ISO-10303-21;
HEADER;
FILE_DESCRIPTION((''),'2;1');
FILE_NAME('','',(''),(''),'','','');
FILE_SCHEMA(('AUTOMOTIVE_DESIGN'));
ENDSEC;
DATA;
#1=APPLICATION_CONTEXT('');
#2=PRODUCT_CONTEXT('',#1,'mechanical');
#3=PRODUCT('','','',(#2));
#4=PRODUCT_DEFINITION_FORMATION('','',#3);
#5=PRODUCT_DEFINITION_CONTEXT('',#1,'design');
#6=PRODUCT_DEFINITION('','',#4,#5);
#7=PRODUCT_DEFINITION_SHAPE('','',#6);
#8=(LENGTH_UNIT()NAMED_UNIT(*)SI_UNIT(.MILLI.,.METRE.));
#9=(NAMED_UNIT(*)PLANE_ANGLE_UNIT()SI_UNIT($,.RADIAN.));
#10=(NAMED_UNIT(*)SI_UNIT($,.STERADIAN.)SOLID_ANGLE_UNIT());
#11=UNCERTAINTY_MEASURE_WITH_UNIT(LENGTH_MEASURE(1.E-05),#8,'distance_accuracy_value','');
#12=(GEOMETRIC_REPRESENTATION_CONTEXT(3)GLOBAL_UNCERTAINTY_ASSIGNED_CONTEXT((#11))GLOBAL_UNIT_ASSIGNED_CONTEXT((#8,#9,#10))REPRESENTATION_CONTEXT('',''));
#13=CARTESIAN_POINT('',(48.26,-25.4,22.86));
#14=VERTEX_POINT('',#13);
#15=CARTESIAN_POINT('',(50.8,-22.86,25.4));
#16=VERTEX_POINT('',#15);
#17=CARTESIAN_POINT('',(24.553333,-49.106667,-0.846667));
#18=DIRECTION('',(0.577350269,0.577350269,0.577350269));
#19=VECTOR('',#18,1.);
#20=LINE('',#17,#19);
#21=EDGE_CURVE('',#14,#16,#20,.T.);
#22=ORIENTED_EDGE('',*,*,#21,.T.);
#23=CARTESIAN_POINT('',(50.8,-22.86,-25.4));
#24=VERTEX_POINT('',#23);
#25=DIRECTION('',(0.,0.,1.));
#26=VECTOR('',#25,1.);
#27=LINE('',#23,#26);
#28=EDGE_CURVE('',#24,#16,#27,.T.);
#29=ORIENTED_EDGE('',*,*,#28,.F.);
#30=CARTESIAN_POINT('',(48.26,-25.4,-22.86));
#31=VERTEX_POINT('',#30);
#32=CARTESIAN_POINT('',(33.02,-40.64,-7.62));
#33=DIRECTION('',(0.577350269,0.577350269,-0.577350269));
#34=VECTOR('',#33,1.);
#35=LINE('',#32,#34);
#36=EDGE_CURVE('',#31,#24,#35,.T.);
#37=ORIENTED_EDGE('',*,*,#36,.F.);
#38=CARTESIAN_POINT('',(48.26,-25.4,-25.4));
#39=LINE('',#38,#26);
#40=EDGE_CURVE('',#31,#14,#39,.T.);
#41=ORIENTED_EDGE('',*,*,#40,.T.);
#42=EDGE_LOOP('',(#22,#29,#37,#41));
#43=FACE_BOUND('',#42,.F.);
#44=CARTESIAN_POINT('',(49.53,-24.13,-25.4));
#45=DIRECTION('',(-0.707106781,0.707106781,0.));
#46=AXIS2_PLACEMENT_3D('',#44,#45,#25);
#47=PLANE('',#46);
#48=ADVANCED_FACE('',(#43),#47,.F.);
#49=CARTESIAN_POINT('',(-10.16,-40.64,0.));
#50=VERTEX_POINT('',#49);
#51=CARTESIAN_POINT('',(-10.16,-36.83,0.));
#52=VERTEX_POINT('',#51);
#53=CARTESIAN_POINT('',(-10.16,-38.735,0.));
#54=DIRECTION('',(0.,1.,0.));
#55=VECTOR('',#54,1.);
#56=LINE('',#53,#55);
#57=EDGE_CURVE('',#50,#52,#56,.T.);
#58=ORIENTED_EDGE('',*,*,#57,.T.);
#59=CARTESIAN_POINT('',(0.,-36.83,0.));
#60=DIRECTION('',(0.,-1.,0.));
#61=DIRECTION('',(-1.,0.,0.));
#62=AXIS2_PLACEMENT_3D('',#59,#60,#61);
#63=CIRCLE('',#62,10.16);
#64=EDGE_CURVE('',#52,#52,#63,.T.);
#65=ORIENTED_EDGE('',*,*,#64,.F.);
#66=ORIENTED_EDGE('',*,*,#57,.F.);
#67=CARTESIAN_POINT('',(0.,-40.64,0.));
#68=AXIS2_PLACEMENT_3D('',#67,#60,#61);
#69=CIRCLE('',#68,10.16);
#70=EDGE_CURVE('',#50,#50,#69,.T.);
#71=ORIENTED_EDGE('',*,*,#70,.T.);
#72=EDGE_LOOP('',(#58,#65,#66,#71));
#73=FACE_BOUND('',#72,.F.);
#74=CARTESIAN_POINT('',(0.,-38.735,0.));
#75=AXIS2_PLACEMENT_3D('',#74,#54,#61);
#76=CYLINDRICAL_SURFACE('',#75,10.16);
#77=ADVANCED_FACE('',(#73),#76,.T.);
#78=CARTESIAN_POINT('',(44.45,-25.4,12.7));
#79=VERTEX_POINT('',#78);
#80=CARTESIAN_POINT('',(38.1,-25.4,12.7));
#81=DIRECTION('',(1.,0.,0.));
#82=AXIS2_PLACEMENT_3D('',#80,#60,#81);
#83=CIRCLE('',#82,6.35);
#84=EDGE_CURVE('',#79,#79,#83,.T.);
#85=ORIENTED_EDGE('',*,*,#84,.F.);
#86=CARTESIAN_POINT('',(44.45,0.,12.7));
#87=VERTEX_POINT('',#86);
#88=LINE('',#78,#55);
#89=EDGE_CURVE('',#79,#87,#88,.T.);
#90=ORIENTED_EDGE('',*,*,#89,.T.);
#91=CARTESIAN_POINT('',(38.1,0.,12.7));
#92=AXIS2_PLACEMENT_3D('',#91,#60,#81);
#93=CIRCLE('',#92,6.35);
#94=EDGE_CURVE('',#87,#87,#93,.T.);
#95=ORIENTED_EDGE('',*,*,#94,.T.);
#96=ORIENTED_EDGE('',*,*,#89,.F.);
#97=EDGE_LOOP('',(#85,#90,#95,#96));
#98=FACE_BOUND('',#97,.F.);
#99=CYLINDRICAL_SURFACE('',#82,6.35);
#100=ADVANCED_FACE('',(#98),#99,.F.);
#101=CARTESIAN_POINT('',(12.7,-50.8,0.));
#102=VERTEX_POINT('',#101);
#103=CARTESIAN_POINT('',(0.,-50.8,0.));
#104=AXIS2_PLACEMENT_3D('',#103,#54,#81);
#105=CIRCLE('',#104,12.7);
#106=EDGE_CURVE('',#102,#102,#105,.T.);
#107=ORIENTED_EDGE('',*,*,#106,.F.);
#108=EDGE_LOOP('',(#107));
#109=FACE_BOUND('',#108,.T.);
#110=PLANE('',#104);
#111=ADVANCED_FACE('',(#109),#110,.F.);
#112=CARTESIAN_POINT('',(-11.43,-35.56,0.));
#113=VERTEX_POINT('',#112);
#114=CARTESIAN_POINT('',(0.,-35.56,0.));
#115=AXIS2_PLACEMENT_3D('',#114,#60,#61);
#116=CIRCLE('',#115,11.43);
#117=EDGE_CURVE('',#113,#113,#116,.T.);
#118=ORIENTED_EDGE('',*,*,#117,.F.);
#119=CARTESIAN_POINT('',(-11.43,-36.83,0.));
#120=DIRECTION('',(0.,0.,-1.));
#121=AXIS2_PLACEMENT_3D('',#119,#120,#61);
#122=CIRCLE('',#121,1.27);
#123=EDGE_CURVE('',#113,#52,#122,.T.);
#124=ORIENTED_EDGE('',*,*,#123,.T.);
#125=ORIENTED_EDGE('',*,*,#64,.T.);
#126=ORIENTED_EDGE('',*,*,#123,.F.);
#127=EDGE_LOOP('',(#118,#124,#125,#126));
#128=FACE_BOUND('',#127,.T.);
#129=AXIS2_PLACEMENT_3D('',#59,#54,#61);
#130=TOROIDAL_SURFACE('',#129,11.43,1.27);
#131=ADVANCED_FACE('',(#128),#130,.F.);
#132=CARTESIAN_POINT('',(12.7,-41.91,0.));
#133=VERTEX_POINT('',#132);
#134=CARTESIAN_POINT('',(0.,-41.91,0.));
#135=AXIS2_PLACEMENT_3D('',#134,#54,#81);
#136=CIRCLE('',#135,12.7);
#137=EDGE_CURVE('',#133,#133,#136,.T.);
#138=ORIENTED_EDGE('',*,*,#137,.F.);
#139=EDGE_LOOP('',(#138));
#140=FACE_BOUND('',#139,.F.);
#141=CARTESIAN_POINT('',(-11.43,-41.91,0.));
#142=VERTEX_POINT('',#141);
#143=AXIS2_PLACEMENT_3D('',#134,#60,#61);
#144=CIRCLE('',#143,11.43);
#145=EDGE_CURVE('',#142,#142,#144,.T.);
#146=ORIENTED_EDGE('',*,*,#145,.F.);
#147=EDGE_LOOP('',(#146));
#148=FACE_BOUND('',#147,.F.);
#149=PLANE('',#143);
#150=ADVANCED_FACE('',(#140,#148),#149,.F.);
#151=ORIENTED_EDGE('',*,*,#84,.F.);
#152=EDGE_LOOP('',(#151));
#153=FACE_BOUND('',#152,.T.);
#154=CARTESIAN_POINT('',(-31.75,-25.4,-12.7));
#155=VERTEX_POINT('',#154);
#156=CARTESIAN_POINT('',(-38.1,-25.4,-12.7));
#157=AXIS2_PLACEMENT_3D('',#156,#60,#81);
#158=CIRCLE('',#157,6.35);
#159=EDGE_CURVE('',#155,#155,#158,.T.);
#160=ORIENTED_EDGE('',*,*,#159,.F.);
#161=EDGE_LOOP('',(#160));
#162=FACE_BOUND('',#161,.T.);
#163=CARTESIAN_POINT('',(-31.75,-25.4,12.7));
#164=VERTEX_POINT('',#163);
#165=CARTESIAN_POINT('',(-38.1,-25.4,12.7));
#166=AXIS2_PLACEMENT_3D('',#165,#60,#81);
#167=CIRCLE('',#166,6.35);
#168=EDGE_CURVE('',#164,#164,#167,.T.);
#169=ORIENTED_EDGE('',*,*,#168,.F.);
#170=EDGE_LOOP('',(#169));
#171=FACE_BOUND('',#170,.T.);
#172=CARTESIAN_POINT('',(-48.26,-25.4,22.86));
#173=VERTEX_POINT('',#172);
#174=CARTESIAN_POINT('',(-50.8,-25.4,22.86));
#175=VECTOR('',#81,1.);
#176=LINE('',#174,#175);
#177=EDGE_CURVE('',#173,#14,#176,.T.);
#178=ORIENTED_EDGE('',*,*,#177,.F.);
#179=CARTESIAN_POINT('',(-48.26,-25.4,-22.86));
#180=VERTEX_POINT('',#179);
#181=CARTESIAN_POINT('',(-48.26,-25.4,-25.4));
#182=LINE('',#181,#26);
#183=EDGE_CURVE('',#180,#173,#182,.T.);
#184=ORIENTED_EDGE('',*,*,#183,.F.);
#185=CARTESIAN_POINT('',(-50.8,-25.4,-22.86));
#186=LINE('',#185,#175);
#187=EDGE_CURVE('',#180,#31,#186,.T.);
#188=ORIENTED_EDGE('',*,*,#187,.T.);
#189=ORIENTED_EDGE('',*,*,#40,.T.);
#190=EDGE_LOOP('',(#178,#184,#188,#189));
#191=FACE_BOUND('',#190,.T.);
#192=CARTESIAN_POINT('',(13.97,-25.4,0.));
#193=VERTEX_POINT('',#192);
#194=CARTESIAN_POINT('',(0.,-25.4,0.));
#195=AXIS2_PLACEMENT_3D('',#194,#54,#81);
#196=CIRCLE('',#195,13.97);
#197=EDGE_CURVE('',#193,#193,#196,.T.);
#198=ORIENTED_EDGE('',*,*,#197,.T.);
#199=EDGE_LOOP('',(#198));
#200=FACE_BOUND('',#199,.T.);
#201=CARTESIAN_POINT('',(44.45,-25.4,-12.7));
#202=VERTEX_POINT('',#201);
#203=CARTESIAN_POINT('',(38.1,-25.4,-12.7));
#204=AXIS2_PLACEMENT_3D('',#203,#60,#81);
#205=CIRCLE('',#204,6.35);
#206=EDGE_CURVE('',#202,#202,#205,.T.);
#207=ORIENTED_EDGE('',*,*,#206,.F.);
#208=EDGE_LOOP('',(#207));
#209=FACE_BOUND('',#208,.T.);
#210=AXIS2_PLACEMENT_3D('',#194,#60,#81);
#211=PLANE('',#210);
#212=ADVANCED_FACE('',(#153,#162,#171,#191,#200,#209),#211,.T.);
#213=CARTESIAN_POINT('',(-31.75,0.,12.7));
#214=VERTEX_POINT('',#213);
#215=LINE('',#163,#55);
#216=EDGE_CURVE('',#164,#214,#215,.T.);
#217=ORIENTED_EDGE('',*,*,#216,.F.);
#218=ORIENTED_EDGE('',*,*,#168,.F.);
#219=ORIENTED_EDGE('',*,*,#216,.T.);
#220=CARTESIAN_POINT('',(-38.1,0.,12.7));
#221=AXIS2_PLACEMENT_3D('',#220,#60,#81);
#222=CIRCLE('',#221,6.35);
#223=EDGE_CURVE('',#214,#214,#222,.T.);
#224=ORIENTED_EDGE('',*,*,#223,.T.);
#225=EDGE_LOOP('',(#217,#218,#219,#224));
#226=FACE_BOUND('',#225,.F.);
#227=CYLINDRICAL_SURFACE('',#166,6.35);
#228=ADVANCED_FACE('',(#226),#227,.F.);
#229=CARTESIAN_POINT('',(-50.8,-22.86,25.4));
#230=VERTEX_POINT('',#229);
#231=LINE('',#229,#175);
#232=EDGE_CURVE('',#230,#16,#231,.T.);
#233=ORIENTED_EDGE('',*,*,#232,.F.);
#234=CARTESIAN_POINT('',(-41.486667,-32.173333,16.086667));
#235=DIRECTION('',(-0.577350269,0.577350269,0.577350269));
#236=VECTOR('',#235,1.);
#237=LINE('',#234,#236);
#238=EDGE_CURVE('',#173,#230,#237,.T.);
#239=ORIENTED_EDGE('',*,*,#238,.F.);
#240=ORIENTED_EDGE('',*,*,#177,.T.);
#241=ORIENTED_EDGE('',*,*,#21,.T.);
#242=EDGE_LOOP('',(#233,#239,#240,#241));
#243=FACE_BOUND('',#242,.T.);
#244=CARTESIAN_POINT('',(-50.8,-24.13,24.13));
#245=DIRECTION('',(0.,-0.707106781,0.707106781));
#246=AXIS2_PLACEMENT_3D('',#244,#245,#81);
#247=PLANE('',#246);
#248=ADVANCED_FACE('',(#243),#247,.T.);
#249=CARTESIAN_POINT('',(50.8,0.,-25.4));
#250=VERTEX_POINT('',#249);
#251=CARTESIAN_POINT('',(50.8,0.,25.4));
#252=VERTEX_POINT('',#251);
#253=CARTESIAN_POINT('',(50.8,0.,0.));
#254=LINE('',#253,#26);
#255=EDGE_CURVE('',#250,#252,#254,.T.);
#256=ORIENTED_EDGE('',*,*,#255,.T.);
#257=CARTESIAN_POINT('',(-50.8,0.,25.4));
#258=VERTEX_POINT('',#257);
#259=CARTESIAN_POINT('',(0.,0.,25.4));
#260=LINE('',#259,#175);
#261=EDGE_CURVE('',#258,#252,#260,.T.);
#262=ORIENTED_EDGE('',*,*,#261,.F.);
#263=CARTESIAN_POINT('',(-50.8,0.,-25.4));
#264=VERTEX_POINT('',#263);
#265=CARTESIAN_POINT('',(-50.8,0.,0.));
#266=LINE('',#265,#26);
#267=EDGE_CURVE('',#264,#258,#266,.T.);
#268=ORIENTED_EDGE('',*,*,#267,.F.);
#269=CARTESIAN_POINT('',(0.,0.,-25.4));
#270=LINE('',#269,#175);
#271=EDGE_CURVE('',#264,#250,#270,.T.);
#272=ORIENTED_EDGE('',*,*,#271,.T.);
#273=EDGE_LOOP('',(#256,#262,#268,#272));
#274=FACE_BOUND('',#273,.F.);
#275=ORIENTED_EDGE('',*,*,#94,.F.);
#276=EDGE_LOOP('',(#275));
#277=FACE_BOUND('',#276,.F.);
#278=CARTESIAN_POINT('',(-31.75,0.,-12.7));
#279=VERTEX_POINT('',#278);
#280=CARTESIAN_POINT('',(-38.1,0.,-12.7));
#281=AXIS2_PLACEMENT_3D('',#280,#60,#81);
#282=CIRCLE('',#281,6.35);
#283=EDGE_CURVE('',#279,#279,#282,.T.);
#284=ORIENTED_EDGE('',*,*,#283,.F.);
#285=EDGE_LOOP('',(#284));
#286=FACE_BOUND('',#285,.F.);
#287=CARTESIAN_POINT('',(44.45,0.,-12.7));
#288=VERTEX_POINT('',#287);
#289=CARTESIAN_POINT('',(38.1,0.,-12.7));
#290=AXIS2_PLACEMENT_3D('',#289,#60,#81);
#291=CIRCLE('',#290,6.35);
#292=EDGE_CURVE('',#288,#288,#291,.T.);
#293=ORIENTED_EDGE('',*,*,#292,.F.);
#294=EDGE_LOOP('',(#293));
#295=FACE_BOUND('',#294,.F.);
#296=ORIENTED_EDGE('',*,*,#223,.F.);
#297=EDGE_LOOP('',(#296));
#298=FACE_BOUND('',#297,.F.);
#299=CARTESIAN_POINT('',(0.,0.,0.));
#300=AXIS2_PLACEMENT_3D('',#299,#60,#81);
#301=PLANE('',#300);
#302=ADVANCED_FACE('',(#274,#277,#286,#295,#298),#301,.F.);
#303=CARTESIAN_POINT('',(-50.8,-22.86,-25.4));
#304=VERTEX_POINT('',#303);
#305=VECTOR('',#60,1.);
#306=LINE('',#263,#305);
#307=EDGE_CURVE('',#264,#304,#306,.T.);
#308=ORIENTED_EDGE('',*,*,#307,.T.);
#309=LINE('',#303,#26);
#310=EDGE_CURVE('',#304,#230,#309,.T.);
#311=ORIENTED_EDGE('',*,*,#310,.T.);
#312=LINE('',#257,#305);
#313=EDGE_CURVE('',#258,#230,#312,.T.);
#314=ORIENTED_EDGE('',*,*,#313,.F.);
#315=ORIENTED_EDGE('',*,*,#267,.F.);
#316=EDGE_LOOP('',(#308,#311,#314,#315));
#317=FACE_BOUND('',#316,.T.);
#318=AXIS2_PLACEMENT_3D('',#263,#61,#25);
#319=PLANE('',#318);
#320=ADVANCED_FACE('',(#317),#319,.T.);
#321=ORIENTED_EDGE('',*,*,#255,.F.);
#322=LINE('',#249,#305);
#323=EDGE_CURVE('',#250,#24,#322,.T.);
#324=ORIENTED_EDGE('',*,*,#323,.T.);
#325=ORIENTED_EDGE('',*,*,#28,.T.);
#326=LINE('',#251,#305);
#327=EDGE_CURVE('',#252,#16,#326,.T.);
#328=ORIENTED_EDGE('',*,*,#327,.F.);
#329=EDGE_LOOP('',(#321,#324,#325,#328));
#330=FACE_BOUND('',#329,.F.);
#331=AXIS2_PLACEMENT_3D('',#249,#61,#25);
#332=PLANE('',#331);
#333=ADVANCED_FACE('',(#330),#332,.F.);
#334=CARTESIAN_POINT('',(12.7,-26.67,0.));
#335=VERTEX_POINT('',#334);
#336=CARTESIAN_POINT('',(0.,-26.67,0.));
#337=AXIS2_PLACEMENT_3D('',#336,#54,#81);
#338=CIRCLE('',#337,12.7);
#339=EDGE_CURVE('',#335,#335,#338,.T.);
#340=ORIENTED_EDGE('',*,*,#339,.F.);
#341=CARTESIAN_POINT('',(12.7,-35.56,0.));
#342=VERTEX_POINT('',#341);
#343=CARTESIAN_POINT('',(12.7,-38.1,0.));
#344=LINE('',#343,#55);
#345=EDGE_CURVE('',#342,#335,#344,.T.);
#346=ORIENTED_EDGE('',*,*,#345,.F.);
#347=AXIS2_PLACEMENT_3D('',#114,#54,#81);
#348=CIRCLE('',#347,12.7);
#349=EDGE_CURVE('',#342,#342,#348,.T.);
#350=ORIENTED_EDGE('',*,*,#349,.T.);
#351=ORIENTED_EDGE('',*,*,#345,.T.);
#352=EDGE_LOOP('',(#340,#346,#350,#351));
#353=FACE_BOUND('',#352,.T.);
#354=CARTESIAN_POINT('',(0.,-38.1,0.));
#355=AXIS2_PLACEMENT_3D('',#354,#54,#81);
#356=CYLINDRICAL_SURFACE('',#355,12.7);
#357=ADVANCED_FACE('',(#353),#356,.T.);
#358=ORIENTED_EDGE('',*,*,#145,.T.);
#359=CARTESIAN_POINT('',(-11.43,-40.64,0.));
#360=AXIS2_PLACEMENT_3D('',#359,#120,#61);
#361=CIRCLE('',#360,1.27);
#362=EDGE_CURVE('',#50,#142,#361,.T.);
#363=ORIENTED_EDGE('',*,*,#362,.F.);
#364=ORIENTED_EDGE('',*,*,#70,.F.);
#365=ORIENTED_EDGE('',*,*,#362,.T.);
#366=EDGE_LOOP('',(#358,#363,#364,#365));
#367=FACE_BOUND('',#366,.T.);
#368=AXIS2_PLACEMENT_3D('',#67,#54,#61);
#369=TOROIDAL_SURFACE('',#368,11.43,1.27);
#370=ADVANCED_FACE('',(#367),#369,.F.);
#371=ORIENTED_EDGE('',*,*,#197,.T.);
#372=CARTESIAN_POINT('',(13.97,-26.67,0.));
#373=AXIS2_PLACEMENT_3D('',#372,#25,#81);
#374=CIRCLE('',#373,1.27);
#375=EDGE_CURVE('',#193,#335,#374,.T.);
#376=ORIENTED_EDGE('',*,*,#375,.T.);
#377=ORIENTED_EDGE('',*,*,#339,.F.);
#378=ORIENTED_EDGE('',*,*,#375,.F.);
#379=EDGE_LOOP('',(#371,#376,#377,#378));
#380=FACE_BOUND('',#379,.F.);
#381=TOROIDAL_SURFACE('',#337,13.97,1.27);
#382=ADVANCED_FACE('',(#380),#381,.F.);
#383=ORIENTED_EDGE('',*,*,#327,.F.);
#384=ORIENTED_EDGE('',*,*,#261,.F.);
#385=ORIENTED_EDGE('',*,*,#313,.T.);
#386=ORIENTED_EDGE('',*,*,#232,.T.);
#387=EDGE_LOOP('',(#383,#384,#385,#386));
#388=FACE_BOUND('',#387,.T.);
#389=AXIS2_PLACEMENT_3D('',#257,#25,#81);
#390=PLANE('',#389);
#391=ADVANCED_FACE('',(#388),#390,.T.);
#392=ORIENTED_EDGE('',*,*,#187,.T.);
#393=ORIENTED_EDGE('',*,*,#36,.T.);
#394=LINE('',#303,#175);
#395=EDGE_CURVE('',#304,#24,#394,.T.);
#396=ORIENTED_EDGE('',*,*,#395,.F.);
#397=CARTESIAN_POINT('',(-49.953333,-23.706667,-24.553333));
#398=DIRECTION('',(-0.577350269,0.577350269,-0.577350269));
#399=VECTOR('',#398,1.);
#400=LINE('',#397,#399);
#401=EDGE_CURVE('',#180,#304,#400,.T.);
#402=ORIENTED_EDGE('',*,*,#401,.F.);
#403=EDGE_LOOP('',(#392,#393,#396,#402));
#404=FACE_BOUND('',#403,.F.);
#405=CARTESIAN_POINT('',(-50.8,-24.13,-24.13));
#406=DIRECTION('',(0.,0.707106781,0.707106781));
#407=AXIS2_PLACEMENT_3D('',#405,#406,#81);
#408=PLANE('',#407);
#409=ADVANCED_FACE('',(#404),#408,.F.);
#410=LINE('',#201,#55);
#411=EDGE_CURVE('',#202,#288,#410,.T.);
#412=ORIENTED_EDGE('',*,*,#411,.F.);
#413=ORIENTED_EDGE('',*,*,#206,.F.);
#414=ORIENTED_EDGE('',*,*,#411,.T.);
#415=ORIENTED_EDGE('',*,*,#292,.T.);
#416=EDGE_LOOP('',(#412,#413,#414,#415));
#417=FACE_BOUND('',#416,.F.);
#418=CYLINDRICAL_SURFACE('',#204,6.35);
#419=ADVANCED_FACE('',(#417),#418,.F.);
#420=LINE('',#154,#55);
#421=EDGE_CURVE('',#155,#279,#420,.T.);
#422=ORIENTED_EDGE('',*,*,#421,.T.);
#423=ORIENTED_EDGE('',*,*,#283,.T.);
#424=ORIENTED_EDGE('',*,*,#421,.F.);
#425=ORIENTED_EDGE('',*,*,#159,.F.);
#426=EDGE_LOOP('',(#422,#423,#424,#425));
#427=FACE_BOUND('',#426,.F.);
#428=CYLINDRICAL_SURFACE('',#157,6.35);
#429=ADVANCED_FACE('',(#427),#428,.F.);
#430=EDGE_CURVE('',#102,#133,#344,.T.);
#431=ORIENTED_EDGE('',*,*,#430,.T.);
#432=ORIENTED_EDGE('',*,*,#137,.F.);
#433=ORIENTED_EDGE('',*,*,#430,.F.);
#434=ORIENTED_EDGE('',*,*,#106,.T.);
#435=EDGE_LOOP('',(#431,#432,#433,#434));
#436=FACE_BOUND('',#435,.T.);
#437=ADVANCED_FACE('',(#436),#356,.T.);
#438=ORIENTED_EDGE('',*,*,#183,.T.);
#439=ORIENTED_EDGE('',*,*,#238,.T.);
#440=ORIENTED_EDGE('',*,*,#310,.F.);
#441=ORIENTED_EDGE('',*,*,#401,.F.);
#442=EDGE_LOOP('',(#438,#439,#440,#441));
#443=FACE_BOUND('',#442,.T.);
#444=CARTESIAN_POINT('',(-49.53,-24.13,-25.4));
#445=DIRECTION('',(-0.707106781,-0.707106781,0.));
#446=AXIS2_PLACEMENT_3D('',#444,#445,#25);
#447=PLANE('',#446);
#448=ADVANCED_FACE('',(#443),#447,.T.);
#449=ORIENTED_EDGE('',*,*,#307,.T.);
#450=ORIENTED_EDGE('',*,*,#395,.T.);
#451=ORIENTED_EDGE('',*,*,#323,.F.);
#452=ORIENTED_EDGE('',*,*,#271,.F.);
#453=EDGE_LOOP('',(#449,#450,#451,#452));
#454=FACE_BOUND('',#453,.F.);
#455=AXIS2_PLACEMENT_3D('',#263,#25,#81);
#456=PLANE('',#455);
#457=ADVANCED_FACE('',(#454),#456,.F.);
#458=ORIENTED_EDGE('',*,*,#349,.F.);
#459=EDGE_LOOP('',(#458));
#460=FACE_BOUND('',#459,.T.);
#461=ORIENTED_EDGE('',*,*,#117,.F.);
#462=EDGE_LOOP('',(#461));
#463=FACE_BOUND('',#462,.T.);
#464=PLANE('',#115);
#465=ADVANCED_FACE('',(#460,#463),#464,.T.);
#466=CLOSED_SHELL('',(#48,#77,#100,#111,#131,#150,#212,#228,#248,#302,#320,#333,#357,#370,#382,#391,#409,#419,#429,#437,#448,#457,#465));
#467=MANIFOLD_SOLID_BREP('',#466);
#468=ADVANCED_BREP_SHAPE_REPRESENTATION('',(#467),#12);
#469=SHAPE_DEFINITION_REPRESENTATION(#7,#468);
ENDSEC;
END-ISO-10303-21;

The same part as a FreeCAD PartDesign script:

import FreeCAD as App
import Part
import Sketcher
from FreeCAD import Vector
Q = App.Units.Quantity


def edges_at(feature, points):
    """Names of the edges that pass closest to the given points."""
    edges = feature.Shape.Edges
    near = lambda p: min(range(len(edges)), key=lambda i: edges[i].distToShape(Part.Vertex(*p))[0])
    return sorted({f"Edge{near(p) + 1}" for p in points})


def add_polygon(sketch, points):
    """Adds a closed chain of lines whose ends are joined by coincident constraints."""
    first, n = sketch.GeometryCount, len(points)
    for a, b in zip(points, points[1:] + points[:1]):
        sketch.addGeometry(Part.LineSegment(App.Vector(*a, 0), App.Vector(*b, 0)), False)
    for i in range(n):
        sketch.addConstraint(Sketcher.Constraint("Coincident", first + i, 2, first + (i + 1) % n, 1))

doc = App.newDocument("Part")
body = doc.addObject("PartDesign::Body", "Body")

# Sketch on XZ plane
sketch1 = body.newObject("Sketcher::SketchObject", "Sketch")
sketch1.AttachmentSupport = (doc.getObject("XZ_Plane"), [""])
sketch1.MapMode = "FlatFace"
add_polygon(sketch1, [(-51, 25), (-51, -25), (51, -25), (51, 25)])  # lines 0-3
sketch1.addConstraint([
    Sketcher.Constraint("Vertical", 0),
    Sketcher.Constraint("Horizontal", 1),
    Sketcher.Constraint("Vertical", 2),
    Sketcher.Constraint("Horizontal", 3),
    Sketcher.Constraint("Symmetric", 0, 2, 2, 2, -1, 1),
    Sketcher.Constraint("DistanceX", 1, 1, 1, 2, Q("4 in")),
    Sketcher.Constraint("DistanceY", 0, 2, 0, 1, Q("2 in")),
])
pad1 = body.newObject("PartDesign::Pad", "Pad")
pad1.Profile = sketch1
pad1.Length = Q("1 in")

# Sketch on XZ plane
sketch2 = body.newObject("Sketcher::SketchObject", "Sketch001")
sketch2.AttachmentSupport = (doc.getObject("XZ_Plane"), [""])
sketch2.MapMode = "FlatFace"
sketch2.AttachmentOffset = App.Placement(Vector(0, 0, 1 * 25.4), App.Rotation())
sketch2.addGeometry([
    Part.Circle(Vector(-38, 13, 0), Vector(0, 0, 1), 6),
    Part.Circle(Vector(-38, -13, 0), Vector(0, 0, 1), 6),
    Part.Circle(Vector(38, 13, 0), Vector(0, 0, 1), 6),
    Part.Circle(Vector(38, -13, 0), Vector(0, 0, 1), 6),
], False)
sketch2.addConstraint([
    Sketcher.Constraint("Equal", 0, 1),
    Sketcher.Constraint("Equal", 1, 2),
    Sketcher.Constraint("Equal", 2, 3),
    Sketcher.Constraint("Symmetric", 1, 3, 2, 3, -1, 1),
    Sketcher.Constraint("Symmetric", 0, 3, 3, 3, -1, 1),
    Sketcher.Constraint("Symmetric", 0, 3, 2, 3, -2),
    Sketcher.Constraint("Diameter", 0, Q("0.5 in")),
    Sketcher.Constraint("DistanceY", 1, 3, 0, 3, Q("1 in")),
    Sketcher.Constraint("DistanceX", 0, 3, 2, 3, Q("3 in")),
])
pocket1 = body.newObject("PartDesign::Pocket", "Pocket")
pocket1.Profile = sketch2
pocket1.Type = "ThroughAll"

# Sketch on XY plane
sketch3 = body.newObject("Sketcher::SketchObject", "Sketch002")
sketch3.AttachmentSupport = (doc.getObject("XY_Plane"), [""])
sketch3.MapMode = "FlatFace"
add_polygon(sketch3, [(0, -25), (0, -51), (13, -51), (13, -25)])  # lines 0-3
sketch3.addConstraint([
    Sketcher.Constraint("Vertical", 0),
    Sketcher.Constraint("Horizontal", 1),
    Sketcher.Constraint("Vertical", 2),
    Sketcher.Constraint("Horizontal", 3),
    Sketcher.Constraint("PointOnObject", 0, 2, -2),
    Sketcher.Constraint("DistanceY", 0, 2, 0, 1, Q("1 in")),
    Sketcher.Constraint("DistanceX", 1, 1, 1, 2, Q("0.5 in")),
    Sketcher.Constraint("DistanceY", 0, 2, -1, 1, Q("2 in")),
])
revolution = body.newObject("PartDesign::Revolution", "Revolution")
revolution.Profile = sketch3
revolution.ReferenceAxis = (sketch3, ["V_Axis"])
revolution.Angle = 360

# Sketch on XY plane
sketch4 = body.newObject("Sketcher::SketchObject", "Sketch003")
sketch4.AttachmentSupport = (doc.getObject("XY_Plane"), [""])
sketch4.MapMode = "FlatFace"
add_polygon(sketch4, [(-18, -36), (-18, -42), (-10, -42), (-10, -36)])  # lines 0-3
sketch4.addConstraint([
    Sketcher.Constraint("Vertical", 0),
    Sketcher.Constraint("Horizontal", 1),
    Sketcher.Constraint("Vertical", 2),
    Sketcher.Constraint("Horizontal", 3),
    Sketcher.Constraint("DistanceY", 0, 2, 0, 1, Q("0.25 in")),
    Sketcher.Constraint("DistanceX", 1, 2, -1, 1, Q("0.4 in")),
    Sketcher.Constraint("DistanceY", 2, 2, -1, 1, Q("1.4 in")),
    Sketcher.Constraint("DistanceX", 1, 1, 1, 2, Q("8.301848 mm")),
])
groove = body.newObject("PartDesign::Groove", "Groove")
groove.Profile = sketch4
groove.ReferenceAxis = (sketch4, ["V_Axis"])
groove.Angle = 360
doc.recompute()

fillet = body.newObject("PartDesign::Fillet", "Fillet")
fillet.Base = (groove, edges_at(groove, [(-12.7, -25.4, 0), (10.16, -35.56, 0), (10.16, -41.91, 0)]))
fillet.Radius = Q("0.05 in")
doc.recompute()

chamfer = body.newObject("PartDesign::Chamfer", "Chamfer")
chamfer.Base = (fillet, edges_at(fillet, [
    (0, -25.4, 25.4),
    (-50.8, -25.4, 0),
    (0, -25.4, -25.4),
    (50.8, -25.4, 0),
]))
chamfer.Size = Q("0.1 in")

doc.recompute()
